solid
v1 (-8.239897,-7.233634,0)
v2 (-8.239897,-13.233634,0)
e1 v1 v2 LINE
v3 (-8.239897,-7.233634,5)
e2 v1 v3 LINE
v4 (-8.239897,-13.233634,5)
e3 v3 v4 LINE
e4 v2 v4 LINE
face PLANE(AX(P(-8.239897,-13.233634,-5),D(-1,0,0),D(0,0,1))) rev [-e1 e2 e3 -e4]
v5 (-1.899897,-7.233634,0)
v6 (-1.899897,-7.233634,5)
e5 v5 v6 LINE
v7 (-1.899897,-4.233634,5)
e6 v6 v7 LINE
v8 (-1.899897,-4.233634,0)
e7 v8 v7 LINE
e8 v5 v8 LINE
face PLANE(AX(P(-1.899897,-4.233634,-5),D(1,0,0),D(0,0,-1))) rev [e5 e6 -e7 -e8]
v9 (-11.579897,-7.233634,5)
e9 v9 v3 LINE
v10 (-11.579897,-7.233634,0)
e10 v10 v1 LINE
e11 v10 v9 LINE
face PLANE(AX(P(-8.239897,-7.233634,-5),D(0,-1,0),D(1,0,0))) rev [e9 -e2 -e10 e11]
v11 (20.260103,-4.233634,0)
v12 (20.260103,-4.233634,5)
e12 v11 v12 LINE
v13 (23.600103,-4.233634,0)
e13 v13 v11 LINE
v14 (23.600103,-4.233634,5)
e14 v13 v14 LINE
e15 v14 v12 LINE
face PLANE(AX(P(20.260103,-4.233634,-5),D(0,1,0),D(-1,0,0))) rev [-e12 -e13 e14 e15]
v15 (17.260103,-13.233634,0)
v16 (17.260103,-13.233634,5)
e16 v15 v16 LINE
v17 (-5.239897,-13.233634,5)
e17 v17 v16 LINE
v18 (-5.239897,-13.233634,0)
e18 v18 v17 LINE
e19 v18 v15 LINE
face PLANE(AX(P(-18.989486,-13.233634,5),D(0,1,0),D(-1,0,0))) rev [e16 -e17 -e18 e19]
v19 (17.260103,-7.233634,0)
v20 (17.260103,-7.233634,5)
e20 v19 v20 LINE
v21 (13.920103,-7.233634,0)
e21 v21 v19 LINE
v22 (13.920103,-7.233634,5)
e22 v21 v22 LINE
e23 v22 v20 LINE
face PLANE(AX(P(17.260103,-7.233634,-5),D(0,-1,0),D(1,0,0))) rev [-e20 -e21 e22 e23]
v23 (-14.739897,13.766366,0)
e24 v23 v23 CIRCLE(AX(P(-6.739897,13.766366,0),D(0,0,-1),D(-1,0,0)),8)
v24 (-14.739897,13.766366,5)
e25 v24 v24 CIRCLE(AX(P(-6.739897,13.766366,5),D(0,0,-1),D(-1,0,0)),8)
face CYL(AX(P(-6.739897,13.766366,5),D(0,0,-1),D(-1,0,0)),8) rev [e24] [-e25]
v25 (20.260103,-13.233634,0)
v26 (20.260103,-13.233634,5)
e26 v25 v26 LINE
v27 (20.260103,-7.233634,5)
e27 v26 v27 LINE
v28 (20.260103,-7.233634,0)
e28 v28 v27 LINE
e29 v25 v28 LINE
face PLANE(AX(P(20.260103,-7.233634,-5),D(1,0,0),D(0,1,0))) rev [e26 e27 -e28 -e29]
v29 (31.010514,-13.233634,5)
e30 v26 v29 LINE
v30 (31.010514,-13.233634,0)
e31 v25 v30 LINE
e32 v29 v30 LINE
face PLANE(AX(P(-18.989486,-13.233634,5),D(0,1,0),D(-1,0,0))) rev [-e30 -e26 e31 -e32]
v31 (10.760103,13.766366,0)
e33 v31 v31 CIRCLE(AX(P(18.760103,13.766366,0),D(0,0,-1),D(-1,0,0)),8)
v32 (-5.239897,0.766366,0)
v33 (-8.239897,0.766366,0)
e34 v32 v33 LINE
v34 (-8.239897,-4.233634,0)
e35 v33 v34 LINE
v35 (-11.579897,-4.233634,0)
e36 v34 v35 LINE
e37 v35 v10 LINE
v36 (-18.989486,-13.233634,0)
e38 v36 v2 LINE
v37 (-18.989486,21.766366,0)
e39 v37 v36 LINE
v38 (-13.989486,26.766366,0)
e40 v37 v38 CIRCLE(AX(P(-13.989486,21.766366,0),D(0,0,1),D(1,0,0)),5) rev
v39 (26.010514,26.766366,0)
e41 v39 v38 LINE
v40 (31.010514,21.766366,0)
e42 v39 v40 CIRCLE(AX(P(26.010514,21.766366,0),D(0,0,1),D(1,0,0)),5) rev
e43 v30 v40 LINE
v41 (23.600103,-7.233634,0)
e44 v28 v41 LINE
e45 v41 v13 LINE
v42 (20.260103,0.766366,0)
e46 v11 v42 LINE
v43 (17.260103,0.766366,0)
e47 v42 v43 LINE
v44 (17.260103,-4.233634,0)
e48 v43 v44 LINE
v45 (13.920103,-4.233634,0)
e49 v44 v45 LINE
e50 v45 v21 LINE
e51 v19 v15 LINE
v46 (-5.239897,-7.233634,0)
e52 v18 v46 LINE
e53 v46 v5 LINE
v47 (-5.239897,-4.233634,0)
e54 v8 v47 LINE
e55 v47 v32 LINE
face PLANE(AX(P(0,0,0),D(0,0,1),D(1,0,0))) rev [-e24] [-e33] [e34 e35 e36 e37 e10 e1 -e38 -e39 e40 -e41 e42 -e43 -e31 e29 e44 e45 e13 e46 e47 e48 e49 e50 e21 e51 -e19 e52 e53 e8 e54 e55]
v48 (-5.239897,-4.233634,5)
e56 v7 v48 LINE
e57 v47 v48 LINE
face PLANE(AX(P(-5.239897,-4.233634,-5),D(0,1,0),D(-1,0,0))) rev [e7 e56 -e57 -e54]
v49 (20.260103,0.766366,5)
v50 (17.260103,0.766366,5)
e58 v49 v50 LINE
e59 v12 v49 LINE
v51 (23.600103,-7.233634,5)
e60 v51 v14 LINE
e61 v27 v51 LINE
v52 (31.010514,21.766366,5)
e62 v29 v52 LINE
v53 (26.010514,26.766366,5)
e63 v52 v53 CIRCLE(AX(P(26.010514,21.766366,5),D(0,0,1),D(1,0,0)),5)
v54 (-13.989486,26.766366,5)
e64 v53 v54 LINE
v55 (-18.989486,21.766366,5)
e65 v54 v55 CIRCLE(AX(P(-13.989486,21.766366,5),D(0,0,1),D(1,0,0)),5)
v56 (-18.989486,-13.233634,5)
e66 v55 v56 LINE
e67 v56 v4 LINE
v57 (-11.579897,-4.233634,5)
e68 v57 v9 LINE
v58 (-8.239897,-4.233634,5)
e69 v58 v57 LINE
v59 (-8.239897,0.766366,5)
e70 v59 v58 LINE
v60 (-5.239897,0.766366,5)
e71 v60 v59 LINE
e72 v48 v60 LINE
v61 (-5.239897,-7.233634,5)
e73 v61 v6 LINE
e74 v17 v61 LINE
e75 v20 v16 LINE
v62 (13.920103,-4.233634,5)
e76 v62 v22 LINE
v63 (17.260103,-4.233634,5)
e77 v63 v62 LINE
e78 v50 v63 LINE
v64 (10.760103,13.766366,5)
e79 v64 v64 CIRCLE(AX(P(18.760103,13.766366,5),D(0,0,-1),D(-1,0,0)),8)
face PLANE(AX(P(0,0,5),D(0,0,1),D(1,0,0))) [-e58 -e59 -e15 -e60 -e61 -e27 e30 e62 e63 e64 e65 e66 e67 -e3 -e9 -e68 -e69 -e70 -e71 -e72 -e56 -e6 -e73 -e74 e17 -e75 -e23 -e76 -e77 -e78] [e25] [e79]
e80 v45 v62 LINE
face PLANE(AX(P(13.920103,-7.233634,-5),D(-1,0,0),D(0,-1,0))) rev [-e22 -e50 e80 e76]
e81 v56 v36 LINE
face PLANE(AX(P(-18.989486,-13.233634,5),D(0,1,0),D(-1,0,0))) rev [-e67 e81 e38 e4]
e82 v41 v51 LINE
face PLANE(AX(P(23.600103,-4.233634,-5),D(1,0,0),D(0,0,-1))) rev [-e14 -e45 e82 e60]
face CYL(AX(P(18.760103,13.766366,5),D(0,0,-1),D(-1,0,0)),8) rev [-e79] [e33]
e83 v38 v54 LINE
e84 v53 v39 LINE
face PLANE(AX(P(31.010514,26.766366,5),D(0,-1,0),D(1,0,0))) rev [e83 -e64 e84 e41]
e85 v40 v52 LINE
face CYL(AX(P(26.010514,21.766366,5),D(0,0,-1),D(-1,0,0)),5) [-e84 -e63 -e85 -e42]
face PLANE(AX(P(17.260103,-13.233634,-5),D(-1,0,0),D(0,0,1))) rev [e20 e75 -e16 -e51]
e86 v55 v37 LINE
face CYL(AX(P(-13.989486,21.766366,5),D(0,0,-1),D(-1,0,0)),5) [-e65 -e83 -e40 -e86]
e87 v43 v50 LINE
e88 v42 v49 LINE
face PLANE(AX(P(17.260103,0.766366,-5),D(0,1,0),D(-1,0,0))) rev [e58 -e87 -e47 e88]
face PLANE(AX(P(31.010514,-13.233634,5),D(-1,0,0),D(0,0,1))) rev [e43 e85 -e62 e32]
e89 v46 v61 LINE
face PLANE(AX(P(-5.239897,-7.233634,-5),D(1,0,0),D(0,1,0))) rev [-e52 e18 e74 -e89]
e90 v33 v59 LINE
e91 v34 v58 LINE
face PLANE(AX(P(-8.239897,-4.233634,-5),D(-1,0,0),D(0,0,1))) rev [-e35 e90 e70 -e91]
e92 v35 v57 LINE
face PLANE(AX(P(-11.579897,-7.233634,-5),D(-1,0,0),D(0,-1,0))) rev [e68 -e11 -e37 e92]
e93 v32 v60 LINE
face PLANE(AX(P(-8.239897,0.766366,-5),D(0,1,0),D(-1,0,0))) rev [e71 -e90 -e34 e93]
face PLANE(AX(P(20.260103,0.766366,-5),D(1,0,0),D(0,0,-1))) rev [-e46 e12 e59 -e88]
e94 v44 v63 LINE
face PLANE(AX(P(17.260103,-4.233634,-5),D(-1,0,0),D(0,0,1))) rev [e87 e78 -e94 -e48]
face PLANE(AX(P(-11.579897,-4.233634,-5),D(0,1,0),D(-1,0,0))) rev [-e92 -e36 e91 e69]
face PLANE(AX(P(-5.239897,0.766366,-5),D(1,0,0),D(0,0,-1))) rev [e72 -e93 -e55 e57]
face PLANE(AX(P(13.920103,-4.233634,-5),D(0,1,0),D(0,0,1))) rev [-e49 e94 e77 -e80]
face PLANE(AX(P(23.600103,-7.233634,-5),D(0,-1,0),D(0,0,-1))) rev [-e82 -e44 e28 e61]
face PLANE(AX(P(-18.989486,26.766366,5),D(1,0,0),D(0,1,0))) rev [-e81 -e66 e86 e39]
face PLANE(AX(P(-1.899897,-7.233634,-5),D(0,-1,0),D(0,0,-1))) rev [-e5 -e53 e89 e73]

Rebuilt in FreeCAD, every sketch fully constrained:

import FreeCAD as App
import Part
import Sketcher

V = App.Vector
Q = App.Units.Quantity


def edges_at(feature, points):
    """Names of the edges that pass closest to the given points."""
    edges = feature.Shape.Edges
    near = lambda p: min(range(len(edges)), key=lambda i: edges[i].distToShape(Part.Vertex(*p))[0])
    return sorted({f"Edge{near(p) + 1}" for p in points})

doc = App.newDocument("Part")
params = doc.addObject("Spreadsheet::Sheet", "Params")
for row, (alias, value) in enumerate([
    ("sketch1_width", "50 mm"),
    ("sketch1_height", "40 mm"),
    ("pad1_length", "5 mm"),
    ("sketch2_diameter", "16 mm"),
    ("pocket1_length", "5 mm"),
    ("sketch3_width", "3 mm"),
    ("sketch3_height", "6 mm"),
    ("sketch3_height2", "5 mm"),
    ("sketch3_width2", "3.34 mm"),
    ("pocket2_length", "10 mm"),
    ("fillet_radius", "5 mm"),
    ("fillet2_radius", "5 mm"),
], start=1):
    params.set(f"A{row}", alias)
    params.set(f"B{row}", "=" + value)
    params.setAlias(f"B{row}", alias)

body = doc.addObject("PartDesign::Body", "Body")

sketch1 = body.newObject("Sketcher::SketchObject", "Sketch")
sketch1.AttachmentSupport = (doc.getObject("XY_Plane"), [""])
sketch1.MapMode = "FlatFace"
sketch1.addGeometry([
    Part.LineSegment(V(-19, 27, 0), V(-19, -13, 0)),
    Part.LineSegment(V(-19, -13, 0), V(31, -13, 0)),
    Part.LineSegment(V(31, -13, 0), V(31, 27, 0)),
    Part.LineSegment(V(31, 27, 0), V(-19, 27, 0)),
], False)
sketch1.addConstraint([
    Sketcher.Constraint("Coincident", 0, 2, 1, 1),
    Sketcher.Constraint("Coincident", 1, 2, 2, 1),
    Sketcher.Constraint("Coincident", 2, 2, 3, 1),
    Sketcher.Constraint("Coincident", 3, 2, 0, 1),
    Sketcher.Constraint("Vertical", 0),
    Sketcher.Constraint("Horizontal", 1),
    Sketcher.Constraint("Vertical", 2),
    Sketcher.Constraint("Horizontal", 3),
    Sketcher.Constraint("DistanceX", 1, 1, 1, 2, Q("50 mm")),
    Sketcher.Constraint("DistanceY", 0, 2, 0, 1, Q("40 mm")),
    Sketcher.Constraint("DistanceX", 0, 2, -1, 1, Q("18.989486 mm")),
    Sketcher.Constraint("DistanceY", 0, 2, -1, 1, Q("13.233634 mm")),
])
sketch1.setExpression("Constraints[8]", "Params.sketch1_width")
sketch1.setExpression("Constraints[9]", "Params.sketch1_height")
pad1 = body.newObject("PartDesign::Pad", "Pad")
pad1.Profile = sketch1
pad1.setExpression("Length", "Params.pad1_length")

sketch2 = body.newObject("Sketcher::SketchObject", "Sketch001")
sketch2.AttachmentSupport = (doc.getObject("XY_Plane"), [""])
sketch2.MapMode = "FlatFace"
sketch2.addGeometry([
    Part.Circle(V(19, 14, 0), V(0, 0, 1), 8),
    Part.Circle(V(-7, 14, 0), V(0, 0, 1), 8),
], False)
sketch2.addConstraint([
    Sketcher.Constraint("Equal", 0, 1),
    Sketcher.Constraint("Horizontal", 0, 3, 1, 3),
    Sketcher.Constraint("Diameter", 0, Q("16 mm")),
    Sketcher.Constraint("DistanceX", 1, 3, 0, 3, Q("25.5 mm")),
    Sketcher.Constraint("DistanceX", -1, 1, 0, 3, Q("18.760103 mm")),
    Sketcher.Constraint("DistanceY", -1, 1, 0, 3, Q("13.766366 mm")),
])
sketch2.setExpression("Constraints[2]", "Params.sketch2_diameter")
pocket1 = body.newObject("PartDesign::Pocket", "Pocket")
pocket1.Profile = sketch2
pocket1.setExpression("Length", "Params.pocket1_length")
pocket1.Reversed = True

sketch3 = body.newObject("Sketcher::SketchObject", "Sketch002")
sketch3.AttachmentSupport = (doc.getObject("XY_Plane"), [""])
sketch3.MapMode = "FlatFace"
sketch3.AttachmentOffset = App.Placement(V(0, 0, 5), App.Rotation())
sketch3.addGeometry([
    Part.LineSegment(V(17.3, -13.2, 0), V(20.3, -13.2, 0)),
    Part.LineSegment(V(20.3, -13.2, 0), V(20.3, -7.2, 0)),
    Part.LineSegment(V(20.3, -7.2, 0), V(23.6, -7.2, 0)),
    Part.LineSegment(V(23.6, -7.2, 0), V(23.6, -4.2, 0)),
    Part.LineSegment(V(23.6, -4.2, 0), V(20.3, -4.2, 0)),
    Part.LineSegment(V(20.3, -4.2, 0), V(20.3, 0.8, 0)),
    Part.LineSegment(V(20.3, 0.8, 0), V(17.3, 0.8, 0)),
    Part.LineSegment(V(17.3, 0.8, 0), V(17.3, -4.2, 0)),
    Part.LineSegment(V(17.3, -4.2, 0), V(13.9, -4.2, 0)),
    Part.LineSegment(V(13.9, -4.2, 0), V(13.9, -7.2, 0)),
    Part.LineSegment(V(13.9, -7.2, 0), V(17.3, -7.2, 0)),
    Part.LineSegment(V(17.3, -7.2, 0), V(17.3, -13.2, 0)),
    Part.LineSegment(V(-8.2, -13.2, 0), V(-5.2, -13.2, 0)),
    Part.LineSegment(V(-5.2, -13.2, 0), V(-5.2, -7.2, 0)),
    Part.LineSegment(V(-5.2, -7.2, 0), V(-1.9, -7.2, 0)),
    Part.LineSegment(V(-1.9, -7.2, 0), V(-1.9, -4.2, 0)),
    Part.LineSegment(V(-1.9, -4.2, 0), V(-5.2, -4.2, 0)),
    Part.LineSegment(V(-5.2, -4.2, 0), V(-5.2, 0.8, 0)),
    Part.LineSegment(V(-5.2, 0.8, 0), V(-8.2, 0.8, 0)),
    Part.LineSegment(V(-8.2, 0.8, 0), V(-8.2, -4.2, 0)),
    Part.LineSegment(V(-8.2, -4.2, 0), V(-11.6, -4.2, 0)),
    Part.LineSegment(V(-11.6, -4.2, 0), V(-11.6, -7.2, 0)),
    Part.LineSegment(V(-11.6, -7.2, 0), V(-8.2, -7.2, 0)),
    Part.LineSegment(V(-8.2, -7.2, 0), V(-8.2, -13.2, 0)),
], False)
sketch3.addConstraint([
    Sketcher.Constraint("Coincident", 0, 2, 1, 1),
    Sketcher.Constraint("Coincident", 1, 2, 2, 1),
    Sketcher.Constraint("Coincident", 2, 2, 3, 1),
    Sketcher.Constraint("Coincident", 3, 2, 4, 1),
    Sketcher.Constraint("Coincident", 4, 2, 5, 1),
    Sketcher.Constraint("Coincident", 5, 2, 6, 1),
    Sketcher.Constraint("Coincident", 6, 2, 7, 1),
    Sketcher.Constraint("Coincident", 7, 2, 8, 1),
    Sketcher.Constraint("Coincident", 8, 2, 9, 1),
    Sketcher.Constraint("Coincident", 9, 2, 10, 1),
    Sketcher.Constraint("Coincident", 10, 2, 11, 1),
    Sketcher.Constraint("Coincident", 11, 2, 0, 1),
    Sketcher.Constraint("Coincident", 12, 2, 13, 1),
    Sketcher.Constraint("Coincident", 13, 2, 14, 1),
    Sketcher.Constraint("Coincident", 14, 2, 15, 1),
    Sketcher.Constraint("Coincident", 15, 2, 16, 1),
    Sketcher.Constraint("Coincident", 16, 2, 17, 1),
    Sketcher.Constraint("Coincident", 17, 2, 18, 1),
    Sketcher.Constraint("Coincident", 18, 2, 19, 1),
    Sketcher.Constraint("Coincident", 19, 2, 20, 1),
    Sketcher.Constraint("Coincident", 20, 2, 21, 1),
    Sketcher.Constraint("Coincident", 21, 2, 22, 1),
    Sketcher.Constraint("Coincident", 22, 2, 23, 1),
    Sketcher.Constraint("Coincident", 23, 2, 12, 1),
    Sketcher.Constraint("Horizontal", 0),
    Sketcher.Constraint("Vertical", 1),
    Sketcher.Constraint("Horizontal", 2),
    Sketcher.Constraint("Vertical", 3),
    Sketcher.Constraint("Horizontal", 4),
    Sketcher.Constraint("Vertical", 5),
    Sketcher.Constraint("Horizontal", 6),
    Sketcher.Constraint("Vertical", 7),
    Sketcher.Constraint("Horizontal", 8),
    Sketcher.Constraint("Vertical", 9),
    Sketcher.Constraint("Horizontal", 10),
    Sketcher.Constraint("Vertical", 11),
    Sketcher.Constraint("Horizontal", 12),
    Sketcher.Constraint("Vertical", 13),
    Sketcher.Constraint("Horizontal", 14),
    Sketcher.Constraint("Vertical", 15),
    Sketcher.Constraint("Horizontal", 16),
    Sketcher.Constraint("Vertical", 17),
    Sketcher.Constraint("Horizontal", 18),
    Sketcher.Constraint("Vertical", 19),
    Sketcher.Constraint("Horizontal", 20),
    Sketcher.Constraint("Vertical", 21),
    Sketcher.Constraint("Horizontal", 22),
    Sketcher.Constraint("Vertical", 23),
    Sketcher.Constraint("Horizontal", 4, 2, 7, 2),
    Sketcher.Constraint("Horizontal", 2, 2, 9, 2),
    Sketcher.Constraint("Horizontal", 11, 2, 12, 2),
    Sketcher.Constraint("Horizontal", 10, 2, 13, 2),
    Sketcher.Constraint("Horizontal", 8, 2, 15, 2),
    Sketcher.Constraint("Horizontal", 6, 2, 17, 2),
    Sketcher.Constraint("Horizontal", 16, 2, 19, 2),
    Sketcher.Constraint("Horizontal", 14, 2, 21, 2),
    Sketcher.Constraint("Vertical", 1, 2, 4, 2),
    Sketcher.Constraint("Vertical", 7, 2, 10, 2),
    Sketcher.Constraint("Vertical", 13, 2, 16, 2),
    Sketcher.Constraint("Vertical", 19, 2, 22, 2),
    Sketcher.Constraint("Equal", 4, 8),
    Sketcher.Constraint("Equal", 6, 12),
    Sketcher.Constraint("Equal", 10, 14),
    Sketcher.Constraint("Equal", 16, 20),
    Sketcher.Constraint("Equal", 18, 3),
    Sketcher.Constraint("DistanceX", 0, 1, 0, 2, Q("3 mm")),
    Sketcher.Constraint("DistanceY", 1, 1, 1, 2, Q("6 mm")),
    Sketcher.Constraint("DistanceY", 5, 1, 5, 2, Q("5 mm")),
    Sketcher.Constraint("DistanceX", 2, 1, 2, 2, Q("3.34 mm")),
    Sketcher.Constraint("DistanceX", 12, 2, 11, 2, Q("22.5 mm")),
    Sketcher.Constraint("DistanceX", -1, 1, 0, 2, Q("20.260103 mm")),
    Sketcher.Constraint("DistanceY", 0, 2, -1, 1, Q("13.233634 mm")),
])
sketch3.setExpression("Constraints[65]", "Params.sketch3_width")
sketch3.setExpression("Constraints[66]", "Params.sketch3_height")
sketch3.setExpression("Constraints[67]", "Params.sketch3_height2")
sketch3.setExpression("Constraints[68]", "Params.sketch3_width2")
pocket2 = body.newObject("PartDesign::Pocket", "Pocket001")
pocket2.Profile = sketch3
pocket2.setExpression("Length", "Params.pocket2_length")
doc.recompute()

fillet = body.newObject("PartDesign::Fillet", "Fillet")
fillet.Base = (pocket2, edges_at(pocket2, [(-18.989, 26.766, 2.5)]))
fillet.setExpression("Radius", "Params.fillet_radius")
doc.recompute()

fillet2 = body.newObject("PartDesign::Fillet", "Fillet001")
fillet2.Base = (fillet, edges_at(fillet, [(31.011, 26.766, 2.5)]))
fillet2.setExpression("Radius", "Params.fillet2_radius")

doc.recompute()
